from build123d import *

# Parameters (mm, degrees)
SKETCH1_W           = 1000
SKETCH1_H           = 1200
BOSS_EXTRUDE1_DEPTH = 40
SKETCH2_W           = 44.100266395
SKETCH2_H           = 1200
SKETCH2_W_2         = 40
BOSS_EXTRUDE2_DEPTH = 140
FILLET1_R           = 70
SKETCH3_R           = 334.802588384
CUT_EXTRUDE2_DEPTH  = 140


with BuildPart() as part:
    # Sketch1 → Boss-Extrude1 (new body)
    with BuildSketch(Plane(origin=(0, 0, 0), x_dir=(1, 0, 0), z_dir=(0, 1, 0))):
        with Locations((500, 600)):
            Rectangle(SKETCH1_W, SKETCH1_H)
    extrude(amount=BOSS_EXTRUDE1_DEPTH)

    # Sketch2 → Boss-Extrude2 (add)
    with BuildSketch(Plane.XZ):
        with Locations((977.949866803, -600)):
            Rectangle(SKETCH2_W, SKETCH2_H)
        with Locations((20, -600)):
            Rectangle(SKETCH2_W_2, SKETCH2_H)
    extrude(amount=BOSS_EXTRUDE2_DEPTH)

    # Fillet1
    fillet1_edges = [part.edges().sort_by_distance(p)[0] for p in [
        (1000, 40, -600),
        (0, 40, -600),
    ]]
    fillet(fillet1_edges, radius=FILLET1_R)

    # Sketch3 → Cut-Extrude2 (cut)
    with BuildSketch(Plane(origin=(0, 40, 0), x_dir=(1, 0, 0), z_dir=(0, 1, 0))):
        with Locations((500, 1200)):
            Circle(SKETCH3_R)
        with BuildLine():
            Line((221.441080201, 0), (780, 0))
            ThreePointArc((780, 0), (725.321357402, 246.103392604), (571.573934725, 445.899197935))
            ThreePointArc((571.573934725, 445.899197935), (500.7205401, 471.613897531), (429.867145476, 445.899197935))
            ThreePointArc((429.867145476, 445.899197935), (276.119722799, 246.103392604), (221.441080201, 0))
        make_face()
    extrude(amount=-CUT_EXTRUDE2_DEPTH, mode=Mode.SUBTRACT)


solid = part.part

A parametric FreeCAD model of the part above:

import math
import FreeCAD as App
import Part
import Sketcher
from FreeCAD import Vector
Q = App.Units.Quantity


def edges_at(feature, points):
    """Names of the edges that pass closest to the given points."""
    edges = feature.Shape.Edges
    near = lambda p: min(range(len(edges)), key=lambda i: edges[i].distToShape(Part.Vertex(*p))[0])
    return sorted({f"Edge{near(p) + 1}" for p in points})

doc = App.newDocument("Part")
params = doc.addObject("Spreadsheet::Sheet", "Params")
for row, (alias, value) in enumerate([
    ("sketch1_width", "1000 mm"),
    ("sketch1_height", "1200 mm"),
    ("pad1_length", "40 mm"),
    ("sketch2_width", "40 mm"),
    ("sketch2_height", "1200 mm"),
    ("pad2_length", "140 mm"),
    ("fillet_radius", "70 mm"),
    ("pocket1_length", "140 mm"),
], start=1):
    params.set(f"A{row}", alias)
    params.set(f"B{row}", "=" + value)
    params.setAlias(f"B{row}", alias)

body = doc.addObject("PartDesign::Body", "Body")

# Sketch on XZ plane
sketch1 = body.newObject("Sketcher::SketchObject", "Sketch")
sketch1.AttachmentSupport = (doc.getObject("XZ_Plane"), [""])
sketch1.MapMode = "FlatFace"
sketch1.addGeometry([
    Part.LineSegment(Vector(0, -1200, 0), Vector(0, 0, 0)),
    Part.LineSegment(Vector(0, 0, 0), Vector(1000, 0, 0)),
    Part.LineSegment(Vector(1000, 0, 0), Vector(1000, -1200, 0)),
    Part.LineSegment(Vector(1000, -1200, 0), Vector(0, -1200, 0)),
], False)
sketch1.addConstraint([
    Sketcher.Constraint("Coincident", 0, 2, 1, 1),
    Sketcher.Constraint("Coincident", 1, 2, 2, 1),
    Sketcher.Constraint("Coincident", 2, 2, 3, 1),
    Sketcher.Constraint("Coincident", 3, 2, 0, 1),
    Sketcher.Constraint("Vertical", 0),
    Sketcher.Constraint("Horizontal", 1),
    Sketcher.Constraint("Vertical", 2),
    Sketcher.Constraint("Horizontal", 3),
    Sketcher.Constraint("Coincident", 0, 2, -1, 1),
    Sketcher.Constraint("DistanceX", 1, 1, 1, 2, Q("1000 mm")),
    Sketcher.Constraint("DistanceY", 0, 1, 0, 2, Q("1200 mm")),
])
sketch1.setExpression("Constraints[9]", "Params.sketch1_width")
sketch1.setExpression("Constraints[10]", "Params.sketch1_height")
pad1 = body.newObject("PartDesign::Pad", "Pad")
pad1.Profile = sketch1
pad1.setExpression("Length", "Params.pad1_length")
pad1.Reversed = True

# Sketch on XZ plane
sketch2 = body.newObject("Sketcher::SketchObject", "Sketch001")
sketch2.AttachmentSupport = (doc.getObject("XZ_Plane"), [""])
sketch2.MapMode = "FlatFace"
sketch2.addGeometry([
    Part.LineSegment(Vector(955.899734, 0, 0), Vector(955.899734, -1200, 0)),  # 0
    Part.LineSegment(Vector(955.899734, -1200, 0), Vector(1000, -1200, 0)),  # 1
    Part.LineSegment(Vector(1000, -1200, 0), Vector(1000, 0, 0)),  # 2
    Part.LineSegment(Vector(1000, 0, 0), Vector(955.899734, 0, 0)),  # 3
    Part.LineSegment(Vector(0, 0, 0), Vector(0, -1200, 0)),  # 4
    Part.LineSegment(Vector(0, -1200, 0), Vector(40, -1200, 0)),  # 5
    Part.LineSegment(Vector(40, -1200, 0), Vector(40, 0, 0)),  # 6
    Part.LineSegment(Vector(40, 0, 0), Vector(0, 0, 0)),  # 7
], False)
sketch2.addConstraint([
    Sketcher.Constraint("Coincident", 0, 2, 1, 1),
    Sketcher.Constraint("Coincident", 1, 2, 2, 1),
    Sketcher.Constraint("Coincident", 2, 2, 3, 1),
    Sketcher.Constraint("Coincident", 3, 2, 0, 1),
    Sketcher.Constraint("Coincident", 4, 2, 5, 1),
    Sketcher.Constraint("Coincident", 5, 2, 6, 1),
    Sketcher.Constraint("Coincident", 6, 2, 7, 1),
    Sketcher.Constraint("Coincident", 7, 2, 4, 1),
    Sketcher.Constraint("Vertical", 0),
    Sketcher.Constraint("Horizontal", 1),
    Sketcher.Constraint("Vertical", 2),
    Sketcher.Constraint("Horizontal", 3),
    Sketcher.Constraint("Vertical", 4),
    Sketcher.Constraint("Horizontal", 5),
    Sketcher.Constraint("Vertical", 6),
    Sketcher.Constraint("Horizontal", 7),
    Sketcher.Constraint("Coincident", 7, 2, -1, 1),
    Sketcher.Constraint("PointOnObject", 2, 2, -1),
    Sketcher.Constraint("Horizontal", 1, 2, 4, 2),
    Sketcher.Constraint("DistanceX", 5, 1, 5, 2, Q("40 mm")),
    Sketcher.Constraint("DistanceY", 0, 2, 0, 1, Q("1200 mm")),
    Sketcher.Constraint("DistanceX", -1, 1, 1, 2, Q("1000 mm")),
    Sketcher.Constraint("DistanceX", 1, 1, 1, 2, Q("44.100266 mm")),
])
sketch2.setExpression("Constraints[19]", "Params.sketch2_width")
sketch2.setExpression("Constraints[20]", "Params.sketch2_height")
pad2 = body.newObject("PartDesign::Pad", "Pad001")
pad2.Profile = sketch2
pad2.setExpression("Length", "Params.pad2_length")
doc.recompute()

fillet = body.newObject("PartDesign::Fillet", "Fillet")
fillet.Base = (pad2, edges_at(pad2, [(1000, 40, -600), (0, 40, -600)]))
fillet.setExpression("Radius", "Params.fillet_radius")

# Sketch on XZ plane
sketch3 = body.newObject("Sketcher::SketchObject", "Sketch002")
sketch3.AttachmentSupport = (doc.getObject("XZ_Plane"), [""])
sketch3.MapMode = "FlatFace"
sketch3.AttachmentOffset = App.Placement(Vector(0, 0, -40), App.Rotation())
sketch3.addGeometry([
    Part.Circle(Vector(500, -1200, 0), Vector(0, 0, 1), 334.802588),  # 0
    Part.LineSegment(Vector(221.44108, 0, 0), Vector(780, 0, 0)),  # 1
    Part.ArcOfCircle(Part.Circle(Vector(198.816646, 0, 0), Vector(0, 0, 1), 581.183354), math.radians(-50.105469), math.radians(0)),  # 2
    Part.ArcOfCircle(Part.Circle(Vector(500.72054, -361.14305, 0), Vector(0, 0, 1), 110.470847), math.radians(-129.894531), math.radians(-50.105469)),  # 3
    Part.ArcOfCircle(Part.Circle(Vector(802.624434, 0, 0), Vector(0, 0, 1), 581.183354), math.radians(180), math.radians(230.105469)),  # 4
], False)
sketch3.addConstraint([
    Sketcher.Constraint("Coincident", 1, 2, 2, 2),
    Sketcher.Constraint("Tangent", 2, 1, 3, 2),
    Sketcher.Constraint("Tangent", 3, 1, 4, 2),
    Sketcher.Constraint("Coincident", 4, 1, 1, 1),
    Sketcher.Constraint("Horizontal", 1),
    Sketcher.Constraint("Equal", 2, 4),
    Sketcher.Constraint("PointOnObject", 2, 3, -1),
    Sketcher.Constraint("PointOnObject", 4, 3, -1),
    Sketcher.Constraint("PointOnObject", 1, 2, -1),
    Sketcher.Constraint("DistanceX", -1, 1, 0, 3, Q("500 mm")),
    Sketcher.Constraint("DistanceY", 0, 3, -1, 1, Q("1200 mm")),
    Sketcher.Constraint("DistanceX", -1, 1, 1, 2, Q("780 mm")),
    Sketcher.Constraint("Diameter", 0, Q("669.605177 mm")),
    Sketcher.Constraint("Radius", 2, Q("581.183354 mm")),
    Sketcher.Constraint("Radius", 3, Q("110.470847 mm")),
    Sketcher.Constraint("DistanceX", 1, 1, 1, 2, Q("558.55892 mm")),
])
pocket1 = body.newObject("PartDesign::Pocket", "Pocket")
pocket1.Profile = sketch3
pocket1.setExpression("Length", "Params.pocket1_length")
pocket1.Reversed = True

doc.recompute()
